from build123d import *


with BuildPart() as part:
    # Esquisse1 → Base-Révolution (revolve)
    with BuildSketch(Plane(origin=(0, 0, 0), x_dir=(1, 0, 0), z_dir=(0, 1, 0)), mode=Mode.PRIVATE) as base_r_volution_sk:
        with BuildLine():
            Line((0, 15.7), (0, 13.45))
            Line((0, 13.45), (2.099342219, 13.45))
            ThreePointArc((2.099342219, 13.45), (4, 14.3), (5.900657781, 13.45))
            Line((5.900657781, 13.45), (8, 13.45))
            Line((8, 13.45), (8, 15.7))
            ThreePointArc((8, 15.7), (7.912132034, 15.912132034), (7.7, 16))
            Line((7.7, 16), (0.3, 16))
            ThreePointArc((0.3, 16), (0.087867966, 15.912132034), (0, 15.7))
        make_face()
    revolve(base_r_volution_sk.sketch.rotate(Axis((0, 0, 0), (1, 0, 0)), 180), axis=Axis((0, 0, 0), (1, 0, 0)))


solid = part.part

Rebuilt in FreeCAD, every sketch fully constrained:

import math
import FreeCAD as App
import Part
import Sketcher
Q = App.Units.Quantity

doc = App.newDocument("Part")
params = doc.addObject("Spreadsheet::Sheet", "Params")
for row, (alias, value) in enumerate([
    ("sketch1_radius", "0.3 mm"),
    ("sketch1_radius2", "2.55 mm"),
    ("sketch1_width", "7.4 mm"),
    ("sketch1_height", "2.25 mm"),
    ("revolution_angle", "360 deg"),
], start=1):
    params.set(f"A{row}", alias)
    params.set(f"B{row}", "=" + value)
    params.setAlias(f"B{row}", alias)

body = doc.addObject("PartDesign::Body", "Body")

sketch1 = body.newObject("Sketcher::SketchObject", "Sketch")
sketch1.AttachmentSupport = (doc.getObject("XZ_Plane"), [""])
sketch1.MapMode = "FlatFace"
sketch1.addGeometry([
    Part.LineSegment(App.Vector(0, -15.7, 0), App.Vector(0, -13.45, 0)),
    Part.LineSegment(App.Vector(0, -13.45, 0), App.Vector(2.099342, -13.45, 0)),
    Part.ArcOfCircle(Part.Circle(App.Vector(4, -11.75, 0), App.Vector(0, 0, 1), 2.55), math.radians(-138.189685), math.radians(-41.810315)),
    Part.LineSegment(App.Vector(5.900658, -13.45, 0), App.Vector(8, -13.45, 0)),
    Part.LineSegment(App.Vector(8, -13.45, 0), App.Vector(8, -15.7, 0)),
    Part.ArcOfCircle(Part.Circle(App.Vector(7.7, -15.7, 0), App.Vector(0, 0, 1), 0.3), math.radians(-90), math.radians(0)),
    Part.LineSegment(App.Vector(7.7, -16, 0), App.Vector(0.3, -16, 0)),
    Part.ArcOfCircle(Part.Circle(App.Vector(0.3, -15.7, 0), App.Vector(0, 0, 1), 0.3), math.radians(-180), math.radians(-90)),
], False)
sketch1.addConstraint([
    Sketcher.Constraint("Coincident", 0, 2, 1, 1),
    Sketcher.Constraint("Coincident", 1, 2, 2, 1),
    Sketcher.Constraint("Coincident", 2, 2, 3, 1),
    Sketcher.Constraint("Coincident", 3, 2, 4, 1),
    Sketcher.Constraint("Tangent", 4, 2, 5, 2),
    Sketcher.Constraint("Tangent", 5, 1, 6, 1),
    Sketcher.Constraint("Tangent", 6, 2, 7, 2),
    Sketcher.Constraint("Tangent", 7, 1, 0, 1),
    Sketcher.Constraint("Vertical", 0),
    Sketcher.Constraint("Horizontal", 1),
    Sketcher.Constraint("Horizontal", 3),
    Sketcher.Constraint("Vertical", 4),
    Sketcher.Constraint("Horizontal", 6),
    Sketcher.Constraint("Equal", 5, 7),
    Sketcher.Constraint("PointOnObject", 0, 2, -2),
    Sketcher.Constraint("Horizontal", 1, 2, 2, 2),
    Sketcher.Constraint("Equal", 1, 3),
    Sketcher.Constraint("Radius", 5, Q("0.3 mm")),
    Sketcher.Constraint("Radius", 2, Q("2.55 mm")),
    Sketcher.Constraint("DistanceX", 6, 2, 6, 1, Q("7.4 mm")),
    Sketcher.Constraint("DistanceY", 5, 1, -1, 1, Q("16 mm")),
    Sketcher.Constraint("DistanceY", 0, 1, 0, 2, Q("2.25 mm")),
    Sketcher.Constraint("DistanceY", 0, 2, 2, 3, Q("1.7 mm")),
])
sketch1.setExpression("Constraints[17]", "Params.sketch1_radius")
sketch1.setExpression("Constraints[18]", "Params.sketch1_radius2")
sketch1.setExpression("Constraints[19]", "Params.sketch1_width")
sketch1.setExpression("Constraints[21]", "Params.sketch1_height")
revolution = body.newObject("PartDesign::Revolution", "Revolution")
revolution.Profile = sketch1
revolution.ReferenceAxis = (sketch1, ["H_Axis"])
revolution.setExpression("Angle", "Params.revolution_angle")

doc.recompute()
